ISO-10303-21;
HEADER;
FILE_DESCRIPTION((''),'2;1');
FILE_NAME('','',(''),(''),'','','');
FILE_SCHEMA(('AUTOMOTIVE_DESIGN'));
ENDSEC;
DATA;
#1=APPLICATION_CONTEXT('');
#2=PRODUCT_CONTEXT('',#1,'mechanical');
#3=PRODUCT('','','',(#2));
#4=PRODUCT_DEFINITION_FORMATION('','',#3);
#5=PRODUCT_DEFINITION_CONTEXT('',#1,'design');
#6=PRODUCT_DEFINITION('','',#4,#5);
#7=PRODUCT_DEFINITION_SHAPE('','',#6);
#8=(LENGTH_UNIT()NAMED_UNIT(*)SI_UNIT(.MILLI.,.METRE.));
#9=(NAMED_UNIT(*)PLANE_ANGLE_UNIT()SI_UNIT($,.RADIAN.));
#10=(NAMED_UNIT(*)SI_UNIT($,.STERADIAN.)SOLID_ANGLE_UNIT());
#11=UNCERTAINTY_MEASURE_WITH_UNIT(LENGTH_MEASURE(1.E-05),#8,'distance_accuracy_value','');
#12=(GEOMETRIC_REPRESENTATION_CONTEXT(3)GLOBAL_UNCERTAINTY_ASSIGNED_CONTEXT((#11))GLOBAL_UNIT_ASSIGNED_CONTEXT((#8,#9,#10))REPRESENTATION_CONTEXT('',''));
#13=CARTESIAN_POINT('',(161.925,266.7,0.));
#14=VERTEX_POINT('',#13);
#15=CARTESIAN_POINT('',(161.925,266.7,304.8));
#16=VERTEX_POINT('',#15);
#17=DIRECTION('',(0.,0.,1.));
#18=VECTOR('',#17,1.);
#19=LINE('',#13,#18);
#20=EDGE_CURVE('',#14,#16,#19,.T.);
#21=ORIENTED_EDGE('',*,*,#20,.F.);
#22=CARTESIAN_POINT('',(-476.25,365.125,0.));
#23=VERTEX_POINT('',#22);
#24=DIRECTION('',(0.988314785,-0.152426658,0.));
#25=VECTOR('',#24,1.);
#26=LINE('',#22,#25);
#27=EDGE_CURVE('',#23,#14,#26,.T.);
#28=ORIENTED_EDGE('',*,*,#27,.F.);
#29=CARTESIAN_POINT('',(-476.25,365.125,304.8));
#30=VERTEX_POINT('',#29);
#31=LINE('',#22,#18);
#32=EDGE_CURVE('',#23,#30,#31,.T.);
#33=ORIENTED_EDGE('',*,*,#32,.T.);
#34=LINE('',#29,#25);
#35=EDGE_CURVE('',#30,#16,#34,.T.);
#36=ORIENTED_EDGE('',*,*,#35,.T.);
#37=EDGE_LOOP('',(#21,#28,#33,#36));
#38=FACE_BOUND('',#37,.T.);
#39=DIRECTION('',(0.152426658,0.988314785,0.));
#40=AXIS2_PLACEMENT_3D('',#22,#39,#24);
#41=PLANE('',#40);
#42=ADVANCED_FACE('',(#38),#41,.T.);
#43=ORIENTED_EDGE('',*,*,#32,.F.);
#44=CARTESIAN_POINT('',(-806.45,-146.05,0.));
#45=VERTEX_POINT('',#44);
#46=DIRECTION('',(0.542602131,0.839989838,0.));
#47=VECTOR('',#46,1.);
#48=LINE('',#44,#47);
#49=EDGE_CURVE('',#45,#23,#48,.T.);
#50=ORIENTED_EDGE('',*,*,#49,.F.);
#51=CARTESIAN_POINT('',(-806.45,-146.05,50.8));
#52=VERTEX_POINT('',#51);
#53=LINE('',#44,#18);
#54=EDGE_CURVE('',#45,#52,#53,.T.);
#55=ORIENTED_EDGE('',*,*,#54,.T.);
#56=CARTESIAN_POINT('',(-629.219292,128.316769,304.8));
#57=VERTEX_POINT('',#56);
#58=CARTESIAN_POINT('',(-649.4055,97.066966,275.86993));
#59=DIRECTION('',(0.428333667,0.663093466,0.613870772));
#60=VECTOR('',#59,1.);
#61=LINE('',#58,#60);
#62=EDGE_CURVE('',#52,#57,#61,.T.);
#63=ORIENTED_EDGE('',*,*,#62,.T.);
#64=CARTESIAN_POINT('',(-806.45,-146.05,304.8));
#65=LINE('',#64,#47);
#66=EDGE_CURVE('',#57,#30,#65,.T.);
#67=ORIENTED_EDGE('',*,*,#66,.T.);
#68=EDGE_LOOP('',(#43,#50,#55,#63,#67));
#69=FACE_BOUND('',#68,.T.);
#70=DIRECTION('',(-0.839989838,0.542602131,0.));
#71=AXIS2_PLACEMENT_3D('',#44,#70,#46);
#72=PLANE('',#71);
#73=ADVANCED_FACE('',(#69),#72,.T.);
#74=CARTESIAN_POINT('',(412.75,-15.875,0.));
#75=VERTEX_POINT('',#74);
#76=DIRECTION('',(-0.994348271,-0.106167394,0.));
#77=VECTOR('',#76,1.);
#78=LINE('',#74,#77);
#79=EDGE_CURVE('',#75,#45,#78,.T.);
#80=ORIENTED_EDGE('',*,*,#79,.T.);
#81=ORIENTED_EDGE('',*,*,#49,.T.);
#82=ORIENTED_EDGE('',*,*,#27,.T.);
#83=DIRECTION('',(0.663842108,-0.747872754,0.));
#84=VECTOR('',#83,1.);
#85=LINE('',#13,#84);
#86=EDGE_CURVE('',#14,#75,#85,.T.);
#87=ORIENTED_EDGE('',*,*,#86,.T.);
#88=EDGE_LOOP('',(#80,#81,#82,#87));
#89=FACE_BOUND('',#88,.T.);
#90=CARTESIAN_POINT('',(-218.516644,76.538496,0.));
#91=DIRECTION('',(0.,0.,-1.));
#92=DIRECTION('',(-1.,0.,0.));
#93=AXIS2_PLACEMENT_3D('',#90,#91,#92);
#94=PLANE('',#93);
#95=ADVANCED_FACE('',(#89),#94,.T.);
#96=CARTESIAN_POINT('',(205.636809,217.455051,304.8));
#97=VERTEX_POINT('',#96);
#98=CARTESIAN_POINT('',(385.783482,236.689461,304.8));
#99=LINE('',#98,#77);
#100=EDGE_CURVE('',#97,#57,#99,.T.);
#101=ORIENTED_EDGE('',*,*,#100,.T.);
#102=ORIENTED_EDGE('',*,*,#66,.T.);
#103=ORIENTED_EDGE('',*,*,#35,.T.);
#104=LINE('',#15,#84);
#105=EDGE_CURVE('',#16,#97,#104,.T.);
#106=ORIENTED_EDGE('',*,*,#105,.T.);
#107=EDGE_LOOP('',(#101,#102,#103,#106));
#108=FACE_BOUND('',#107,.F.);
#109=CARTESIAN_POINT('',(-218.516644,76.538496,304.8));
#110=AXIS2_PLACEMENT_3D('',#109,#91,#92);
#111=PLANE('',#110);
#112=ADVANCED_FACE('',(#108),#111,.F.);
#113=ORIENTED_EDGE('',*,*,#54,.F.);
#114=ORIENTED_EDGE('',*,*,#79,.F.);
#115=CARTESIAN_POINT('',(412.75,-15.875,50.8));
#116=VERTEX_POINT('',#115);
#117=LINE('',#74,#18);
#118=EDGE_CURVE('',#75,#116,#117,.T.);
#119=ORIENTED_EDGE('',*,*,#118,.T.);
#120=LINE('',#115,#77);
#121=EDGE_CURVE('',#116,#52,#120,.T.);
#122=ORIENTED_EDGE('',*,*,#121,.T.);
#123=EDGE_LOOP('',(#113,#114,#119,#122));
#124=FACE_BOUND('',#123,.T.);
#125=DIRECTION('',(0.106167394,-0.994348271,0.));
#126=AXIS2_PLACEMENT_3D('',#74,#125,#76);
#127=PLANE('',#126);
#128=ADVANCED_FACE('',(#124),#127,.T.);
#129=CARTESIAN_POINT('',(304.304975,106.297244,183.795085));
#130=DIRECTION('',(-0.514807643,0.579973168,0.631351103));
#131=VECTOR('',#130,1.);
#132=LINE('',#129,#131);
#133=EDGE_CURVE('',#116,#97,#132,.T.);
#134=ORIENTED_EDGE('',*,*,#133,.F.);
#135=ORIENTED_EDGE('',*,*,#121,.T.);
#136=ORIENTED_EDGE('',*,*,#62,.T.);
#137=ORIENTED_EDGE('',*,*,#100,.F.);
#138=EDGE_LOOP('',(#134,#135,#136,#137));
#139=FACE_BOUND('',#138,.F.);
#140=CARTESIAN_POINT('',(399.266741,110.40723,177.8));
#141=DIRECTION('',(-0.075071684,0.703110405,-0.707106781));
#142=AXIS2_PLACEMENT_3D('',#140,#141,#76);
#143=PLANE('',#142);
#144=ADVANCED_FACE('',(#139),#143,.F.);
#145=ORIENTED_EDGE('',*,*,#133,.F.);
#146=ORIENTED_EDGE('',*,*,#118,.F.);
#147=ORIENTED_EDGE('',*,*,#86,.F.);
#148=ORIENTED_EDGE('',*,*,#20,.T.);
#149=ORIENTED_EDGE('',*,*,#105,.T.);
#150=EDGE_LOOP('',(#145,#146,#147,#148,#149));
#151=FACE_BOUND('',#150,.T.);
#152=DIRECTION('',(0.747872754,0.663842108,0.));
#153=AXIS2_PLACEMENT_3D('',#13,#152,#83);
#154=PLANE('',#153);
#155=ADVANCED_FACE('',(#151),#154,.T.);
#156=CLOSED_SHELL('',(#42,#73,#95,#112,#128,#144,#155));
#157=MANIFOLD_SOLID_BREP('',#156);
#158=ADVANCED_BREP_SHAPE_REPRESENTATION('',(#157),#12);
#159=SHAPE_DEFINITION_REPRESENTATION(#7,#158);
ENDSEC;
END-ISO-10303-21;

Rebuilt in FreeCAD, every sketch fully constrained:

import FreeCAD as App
import Part
import Sketcher

V = App.Vector
Q = App.Units.Quantity


def edges_at(feature, points):
    """Names of the edges that pass closest to the given points."""
    edges = feature.Shape.Edges
    near = lambda p: min(range(len(edges)), key=lambda i: edges[i].distToShape(Part.Vertex(*p))[0])
    return sorted({f"Edge{near(p) + 1}" for p in points})

doc = App.newDocument("Part")
body = doc.addObject("PartDesign::Body", "Body")

# Sketch on XY plane
sketch1 = doc.addObject("Sketcher::SketchObject", "Sketch")
body.addObject(sketch1)
sketch1.AttachmentSupport = (doc.XY_Plane, [""])
sketch1.MapMode = "FlatFace"
sketch1.addGeometry(Part.LineSegment(V(-476, 365, 0), V(-806, -146, 0)), False)
sketch1.addGeometry(Part.LineSegment(V(-806, -146, 0), V(413, -16, 0)), False)
sketch1.addGeometry(Part.LineSegment(V(413, -16, 0), V(162, 267, 0)), False)
sketch1.addGeometry(Part.LineSegment(V(162, 267, 0), V(-476, 365, 0)), False)
sketch1.addConstraint(Sketcher.Constraint("Coincident", 0, 2, 1, 1))
sketch1.addConstraint(Sketcher.Constraint("Coincident", 1, 2, 2, 1))
sketch1.addConstraint(Sketcher.Constraint("Coincident", 2, 2, 3, 1))
sketch1.addConstraint(Sketcher.Constraint("Coincident", 3, 2, 0, 1))
sketch1.addConstraint(Sketcher.Constraint("DistanceX", 0, 2, 1, 2, Q("48 in")))
sketch1.addConstraint(Sketcher.Constraint("DistanceX", 0, 2, 3, 2, Q("13 in")))
sketch1.addConstraint(Sketcher.Constraint("DistanceY", 1, 2, 3, 2, Q("15 in")))
sketch1.addConstraint(Sketcher.Constraint("DistanceY", -1, 1, 2, 2, Q("10.5 in")))
sketch1.addConstraint(Sketcher.Constraint("DistanceX", 0, 2, -1, 1, Q("31.75 in")))
sketch1.addConstraint(Sketcher.Constraint("DistanceY", 0, 2, -1, 1, Q("5.75 in")))
sketch1.addConstraint(Sketcher.Constraint("DistanceY", 1, 2, -1, 1, Q("0.625 in")))
sketch1.addConstraint(Sketcher.Constraint("DistanceX", -1, 1, 2, 2, Q("6.375 in")))
pad1 = doc.addObject("PartDesign::Pad", "Pad")
body.addObject(pad1)
pad1.Profile = sketch1
pad1.Length = Q("12 in")
doc.recompute()

chamfer = doc.addObject("PartDesign::Chamfer", "Chamfer")
body.addObject(chamfer)
chamfer.Base = (pad1, edges_at(pad1, [(-196.85, -80.963, 304.8)]))
chamfer.Size = Q("10 in")

doc.recompute()
